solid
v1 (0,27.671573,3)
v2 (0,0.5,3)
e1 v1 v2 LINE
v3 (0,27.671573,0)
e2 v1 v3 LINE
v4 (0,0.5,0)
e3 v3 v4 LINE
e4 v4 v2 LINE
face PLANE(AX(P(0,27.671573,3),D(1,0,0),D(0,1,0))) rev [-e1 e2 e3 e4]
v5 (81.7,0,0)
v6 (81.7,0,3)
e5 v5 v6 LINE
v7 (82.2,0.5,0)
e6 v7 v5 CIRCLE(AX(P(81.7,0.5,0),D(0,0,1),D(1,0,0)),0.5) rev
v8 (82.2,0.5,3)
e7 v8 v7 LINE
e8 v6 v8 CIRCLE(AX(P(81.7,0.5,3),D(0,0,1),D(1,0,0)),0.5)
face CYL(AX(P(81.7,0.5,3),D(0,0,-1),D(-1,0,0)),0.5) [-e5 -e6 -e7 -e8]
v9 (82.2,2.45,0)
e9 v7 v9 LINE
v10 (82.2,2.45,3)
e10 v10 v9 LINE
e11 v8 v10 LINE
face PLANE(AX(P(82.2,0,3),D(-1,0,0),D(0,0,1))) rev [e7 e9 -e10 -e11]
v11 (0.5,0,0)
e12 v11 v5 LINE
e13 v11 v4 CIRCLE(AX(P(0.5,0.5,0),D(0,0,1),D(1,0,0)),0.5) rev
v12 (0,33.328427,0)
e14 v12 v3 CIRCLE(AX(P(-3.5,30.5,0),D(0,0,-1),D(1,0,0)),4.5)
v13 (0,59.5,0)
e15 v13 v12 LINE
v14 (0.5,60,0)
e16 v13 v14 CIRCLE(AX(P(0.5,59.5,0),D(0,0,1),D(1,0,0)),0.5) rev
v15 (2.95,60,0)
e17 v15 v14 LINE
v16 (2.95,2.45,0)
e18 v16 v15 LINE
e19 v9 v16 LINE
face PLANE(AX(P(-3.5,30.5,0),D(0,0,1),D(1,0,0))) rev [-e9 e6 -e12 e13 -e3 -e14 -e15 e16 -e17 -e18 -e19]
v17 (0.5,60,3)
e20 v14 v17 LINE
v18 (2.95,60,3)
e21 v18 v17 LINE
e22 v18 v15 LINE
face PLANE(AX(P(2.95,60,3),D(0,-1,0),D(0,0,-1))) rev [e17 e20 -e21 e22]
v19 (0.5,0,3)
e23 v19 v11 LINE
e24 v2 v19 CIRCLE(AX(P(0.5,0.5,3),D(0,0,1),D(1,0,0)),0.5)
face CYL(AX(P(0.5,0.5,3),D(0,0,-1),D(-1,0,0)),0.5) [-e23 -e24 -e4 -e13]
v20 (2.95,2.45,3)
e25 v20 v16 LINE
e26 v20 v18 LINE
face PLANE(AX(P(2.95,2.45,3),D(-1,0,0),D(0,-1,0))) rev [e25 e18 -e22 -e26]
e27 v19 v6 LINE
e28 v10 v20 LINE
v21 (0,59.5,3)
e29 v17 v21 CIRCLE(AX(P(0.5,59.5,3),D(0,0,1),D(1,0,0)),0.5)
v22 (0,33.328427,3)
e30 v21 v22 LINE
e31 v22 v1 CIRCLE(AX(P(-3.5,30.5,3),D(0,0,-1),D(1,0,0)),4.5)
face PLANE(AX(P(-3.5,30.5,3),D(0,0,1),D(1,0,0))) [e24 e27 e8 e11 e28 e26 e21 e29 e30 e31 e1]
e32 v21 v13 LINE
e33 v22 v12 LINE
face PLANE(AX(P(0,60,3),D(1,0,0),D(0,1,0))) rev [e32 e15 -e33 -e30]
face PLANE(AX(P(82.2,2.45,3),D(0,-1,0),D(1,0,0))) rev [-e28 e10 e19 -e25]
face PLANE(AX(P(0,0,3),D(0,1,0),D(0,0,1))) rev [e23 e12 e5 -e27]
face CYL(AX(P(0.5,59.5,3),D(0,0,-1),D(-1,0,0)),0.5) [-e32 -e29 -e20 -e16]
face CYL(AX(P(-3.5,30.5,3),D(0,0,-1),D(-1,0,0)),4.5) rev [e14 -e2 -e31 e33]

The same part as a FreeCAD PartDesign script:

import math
import FreeCAD as App
import Part
import Sketcher
from FreeCAD import Vector
Q = App.Units.Quantity


def edges_at(feature, points):
    """Names of the edges that pass closest to the given points."""
    edges = feature.Shape.Edges
    near = lambda p: min(range(len(edges)), key=lambda i: edges[i].distToShape(Part.Vertex(*p))[0])
    return sorted({f"Edge{near(p) + 1}" for p in points})

doc = App.newDocument("Part")
body = doc.addObject("PartDesign::Body", "Body")

# Sketch on XY plane
sketch1 = body.newObject("Sketcher::SketchObject", "Sketch")
sketch1.AttachmentSupport = (doc.getObject("XY_Plane"), [""])
sketch1.MapMode = "FlatFace"
sketch1.addGeometry([
    Part.LineSegment(Vector(0, 0, 0), Vector(82.2, 0, 0)),  # 0
    Part.LineSegment(Vector(82.2, 0, 0), Vector(82.2, 2.5, 0)),  # 1
    Part.LineSegment(Vector(82.2, 2.5, 0), Vector(3, 2.5, 0)),  # 2
    Part.LineSegment(Vector(3, 2.5, 0), Vector(3, 60, 0)),  # 3
    Part.LineSegment(Vector(3, 60, 0), Vector(0, 60, 0)),  # 4
    Part.LineSegment(Vector(0, 60, 0), Vector(0, 33.3, 0)),  # 5
    Part.ArcOfCircle(Part.Circle(Vector(-3.5, 30.5, 0), Vector(0, 0, 1), 4.5), math.radians(-39), math.radians(39)),  # 6
    Part.LineSegment(Vector(0, 27.7, 0), Vector(0, 0, 0)),  # 7
], False)
sketch1.addConstraint([
    Sketcher.Constraint("Coincident", 0, 2, 1, 1),
    Sketcher.Constraint("Coincident", 1, 2, 2, 1),
    Sketcher.Constraint("Coincident", 2, 2, 3, 1),
    Sketcher.Constraint("Coincident", 3, 2, 4, 1),
    Sketcher.Constraint("Coincident", 4, 2, 5, 1),
    Sketcher.Constraint("Coincident", 5, 2, 6, 2),
    Sketcher.Constraint("Coincident", 6, 1, 7, 1),
    Sketcher.Constraint("Coincident", 7, 2, 0, 1),
    Sketcher.Constraint("Horizontal", 0),
    Sketcher.Constraint("Vertical", 1),
    Sketcher.Constraint("Horizontal", 2),
    Sketcher.Constraint("Vertical", 3),
    Sketcher.Constraint("Horizontal", 4),
    Sketcher.Constraint("Vertical", 5),
    Sketcher.Constraint("Vertical", 7),
    Sketcher.Constraint("Coincident", 7, 2, -1, 1),
    Sketcher.Constraint("PointOnObject", 4, 2, -2),
    Sketcher.Constraint("Radius", 6, Q("4.5 mm")),
    Sketcher.Constraint("DistanceX", 0, 1, 0, 2, Q("82.2 mm")),
    Sketcher.Constraint("DistanceY", -1, 1, 3, 2, Q("60 mm")),
    Sketcher.Constraint("DistanceX", 2, 2, 2, 1, Q("79.25 mm")),
    Sketcher.Constraint("DistanceY", 1, 1, 1, 2, Q("2.45 mm")),
    Sketcher.Constraint("DistanceX", 6, 3, -1, 1, Q("3.5 mm")),
    Sketcher.Constraint("DistanceY", -1, 1, 6, 3, Q("30.5 mm")),
])
pad1 = body.newObject("PartDesign::Pad", "Pad")
pad1.Profile = sketch1
pad1.Length = 3
doc.recompute()

fillet = body.newObject("PartDesign::Fillet", "Fillet")
fillet.Base = (pad1, edges_at(pad1, [(0, 60, 1.5), (82.2, 0, 1.5), (0, 0, 1.5)]))
fillet.Radius = 0.5

doc.recompute()
